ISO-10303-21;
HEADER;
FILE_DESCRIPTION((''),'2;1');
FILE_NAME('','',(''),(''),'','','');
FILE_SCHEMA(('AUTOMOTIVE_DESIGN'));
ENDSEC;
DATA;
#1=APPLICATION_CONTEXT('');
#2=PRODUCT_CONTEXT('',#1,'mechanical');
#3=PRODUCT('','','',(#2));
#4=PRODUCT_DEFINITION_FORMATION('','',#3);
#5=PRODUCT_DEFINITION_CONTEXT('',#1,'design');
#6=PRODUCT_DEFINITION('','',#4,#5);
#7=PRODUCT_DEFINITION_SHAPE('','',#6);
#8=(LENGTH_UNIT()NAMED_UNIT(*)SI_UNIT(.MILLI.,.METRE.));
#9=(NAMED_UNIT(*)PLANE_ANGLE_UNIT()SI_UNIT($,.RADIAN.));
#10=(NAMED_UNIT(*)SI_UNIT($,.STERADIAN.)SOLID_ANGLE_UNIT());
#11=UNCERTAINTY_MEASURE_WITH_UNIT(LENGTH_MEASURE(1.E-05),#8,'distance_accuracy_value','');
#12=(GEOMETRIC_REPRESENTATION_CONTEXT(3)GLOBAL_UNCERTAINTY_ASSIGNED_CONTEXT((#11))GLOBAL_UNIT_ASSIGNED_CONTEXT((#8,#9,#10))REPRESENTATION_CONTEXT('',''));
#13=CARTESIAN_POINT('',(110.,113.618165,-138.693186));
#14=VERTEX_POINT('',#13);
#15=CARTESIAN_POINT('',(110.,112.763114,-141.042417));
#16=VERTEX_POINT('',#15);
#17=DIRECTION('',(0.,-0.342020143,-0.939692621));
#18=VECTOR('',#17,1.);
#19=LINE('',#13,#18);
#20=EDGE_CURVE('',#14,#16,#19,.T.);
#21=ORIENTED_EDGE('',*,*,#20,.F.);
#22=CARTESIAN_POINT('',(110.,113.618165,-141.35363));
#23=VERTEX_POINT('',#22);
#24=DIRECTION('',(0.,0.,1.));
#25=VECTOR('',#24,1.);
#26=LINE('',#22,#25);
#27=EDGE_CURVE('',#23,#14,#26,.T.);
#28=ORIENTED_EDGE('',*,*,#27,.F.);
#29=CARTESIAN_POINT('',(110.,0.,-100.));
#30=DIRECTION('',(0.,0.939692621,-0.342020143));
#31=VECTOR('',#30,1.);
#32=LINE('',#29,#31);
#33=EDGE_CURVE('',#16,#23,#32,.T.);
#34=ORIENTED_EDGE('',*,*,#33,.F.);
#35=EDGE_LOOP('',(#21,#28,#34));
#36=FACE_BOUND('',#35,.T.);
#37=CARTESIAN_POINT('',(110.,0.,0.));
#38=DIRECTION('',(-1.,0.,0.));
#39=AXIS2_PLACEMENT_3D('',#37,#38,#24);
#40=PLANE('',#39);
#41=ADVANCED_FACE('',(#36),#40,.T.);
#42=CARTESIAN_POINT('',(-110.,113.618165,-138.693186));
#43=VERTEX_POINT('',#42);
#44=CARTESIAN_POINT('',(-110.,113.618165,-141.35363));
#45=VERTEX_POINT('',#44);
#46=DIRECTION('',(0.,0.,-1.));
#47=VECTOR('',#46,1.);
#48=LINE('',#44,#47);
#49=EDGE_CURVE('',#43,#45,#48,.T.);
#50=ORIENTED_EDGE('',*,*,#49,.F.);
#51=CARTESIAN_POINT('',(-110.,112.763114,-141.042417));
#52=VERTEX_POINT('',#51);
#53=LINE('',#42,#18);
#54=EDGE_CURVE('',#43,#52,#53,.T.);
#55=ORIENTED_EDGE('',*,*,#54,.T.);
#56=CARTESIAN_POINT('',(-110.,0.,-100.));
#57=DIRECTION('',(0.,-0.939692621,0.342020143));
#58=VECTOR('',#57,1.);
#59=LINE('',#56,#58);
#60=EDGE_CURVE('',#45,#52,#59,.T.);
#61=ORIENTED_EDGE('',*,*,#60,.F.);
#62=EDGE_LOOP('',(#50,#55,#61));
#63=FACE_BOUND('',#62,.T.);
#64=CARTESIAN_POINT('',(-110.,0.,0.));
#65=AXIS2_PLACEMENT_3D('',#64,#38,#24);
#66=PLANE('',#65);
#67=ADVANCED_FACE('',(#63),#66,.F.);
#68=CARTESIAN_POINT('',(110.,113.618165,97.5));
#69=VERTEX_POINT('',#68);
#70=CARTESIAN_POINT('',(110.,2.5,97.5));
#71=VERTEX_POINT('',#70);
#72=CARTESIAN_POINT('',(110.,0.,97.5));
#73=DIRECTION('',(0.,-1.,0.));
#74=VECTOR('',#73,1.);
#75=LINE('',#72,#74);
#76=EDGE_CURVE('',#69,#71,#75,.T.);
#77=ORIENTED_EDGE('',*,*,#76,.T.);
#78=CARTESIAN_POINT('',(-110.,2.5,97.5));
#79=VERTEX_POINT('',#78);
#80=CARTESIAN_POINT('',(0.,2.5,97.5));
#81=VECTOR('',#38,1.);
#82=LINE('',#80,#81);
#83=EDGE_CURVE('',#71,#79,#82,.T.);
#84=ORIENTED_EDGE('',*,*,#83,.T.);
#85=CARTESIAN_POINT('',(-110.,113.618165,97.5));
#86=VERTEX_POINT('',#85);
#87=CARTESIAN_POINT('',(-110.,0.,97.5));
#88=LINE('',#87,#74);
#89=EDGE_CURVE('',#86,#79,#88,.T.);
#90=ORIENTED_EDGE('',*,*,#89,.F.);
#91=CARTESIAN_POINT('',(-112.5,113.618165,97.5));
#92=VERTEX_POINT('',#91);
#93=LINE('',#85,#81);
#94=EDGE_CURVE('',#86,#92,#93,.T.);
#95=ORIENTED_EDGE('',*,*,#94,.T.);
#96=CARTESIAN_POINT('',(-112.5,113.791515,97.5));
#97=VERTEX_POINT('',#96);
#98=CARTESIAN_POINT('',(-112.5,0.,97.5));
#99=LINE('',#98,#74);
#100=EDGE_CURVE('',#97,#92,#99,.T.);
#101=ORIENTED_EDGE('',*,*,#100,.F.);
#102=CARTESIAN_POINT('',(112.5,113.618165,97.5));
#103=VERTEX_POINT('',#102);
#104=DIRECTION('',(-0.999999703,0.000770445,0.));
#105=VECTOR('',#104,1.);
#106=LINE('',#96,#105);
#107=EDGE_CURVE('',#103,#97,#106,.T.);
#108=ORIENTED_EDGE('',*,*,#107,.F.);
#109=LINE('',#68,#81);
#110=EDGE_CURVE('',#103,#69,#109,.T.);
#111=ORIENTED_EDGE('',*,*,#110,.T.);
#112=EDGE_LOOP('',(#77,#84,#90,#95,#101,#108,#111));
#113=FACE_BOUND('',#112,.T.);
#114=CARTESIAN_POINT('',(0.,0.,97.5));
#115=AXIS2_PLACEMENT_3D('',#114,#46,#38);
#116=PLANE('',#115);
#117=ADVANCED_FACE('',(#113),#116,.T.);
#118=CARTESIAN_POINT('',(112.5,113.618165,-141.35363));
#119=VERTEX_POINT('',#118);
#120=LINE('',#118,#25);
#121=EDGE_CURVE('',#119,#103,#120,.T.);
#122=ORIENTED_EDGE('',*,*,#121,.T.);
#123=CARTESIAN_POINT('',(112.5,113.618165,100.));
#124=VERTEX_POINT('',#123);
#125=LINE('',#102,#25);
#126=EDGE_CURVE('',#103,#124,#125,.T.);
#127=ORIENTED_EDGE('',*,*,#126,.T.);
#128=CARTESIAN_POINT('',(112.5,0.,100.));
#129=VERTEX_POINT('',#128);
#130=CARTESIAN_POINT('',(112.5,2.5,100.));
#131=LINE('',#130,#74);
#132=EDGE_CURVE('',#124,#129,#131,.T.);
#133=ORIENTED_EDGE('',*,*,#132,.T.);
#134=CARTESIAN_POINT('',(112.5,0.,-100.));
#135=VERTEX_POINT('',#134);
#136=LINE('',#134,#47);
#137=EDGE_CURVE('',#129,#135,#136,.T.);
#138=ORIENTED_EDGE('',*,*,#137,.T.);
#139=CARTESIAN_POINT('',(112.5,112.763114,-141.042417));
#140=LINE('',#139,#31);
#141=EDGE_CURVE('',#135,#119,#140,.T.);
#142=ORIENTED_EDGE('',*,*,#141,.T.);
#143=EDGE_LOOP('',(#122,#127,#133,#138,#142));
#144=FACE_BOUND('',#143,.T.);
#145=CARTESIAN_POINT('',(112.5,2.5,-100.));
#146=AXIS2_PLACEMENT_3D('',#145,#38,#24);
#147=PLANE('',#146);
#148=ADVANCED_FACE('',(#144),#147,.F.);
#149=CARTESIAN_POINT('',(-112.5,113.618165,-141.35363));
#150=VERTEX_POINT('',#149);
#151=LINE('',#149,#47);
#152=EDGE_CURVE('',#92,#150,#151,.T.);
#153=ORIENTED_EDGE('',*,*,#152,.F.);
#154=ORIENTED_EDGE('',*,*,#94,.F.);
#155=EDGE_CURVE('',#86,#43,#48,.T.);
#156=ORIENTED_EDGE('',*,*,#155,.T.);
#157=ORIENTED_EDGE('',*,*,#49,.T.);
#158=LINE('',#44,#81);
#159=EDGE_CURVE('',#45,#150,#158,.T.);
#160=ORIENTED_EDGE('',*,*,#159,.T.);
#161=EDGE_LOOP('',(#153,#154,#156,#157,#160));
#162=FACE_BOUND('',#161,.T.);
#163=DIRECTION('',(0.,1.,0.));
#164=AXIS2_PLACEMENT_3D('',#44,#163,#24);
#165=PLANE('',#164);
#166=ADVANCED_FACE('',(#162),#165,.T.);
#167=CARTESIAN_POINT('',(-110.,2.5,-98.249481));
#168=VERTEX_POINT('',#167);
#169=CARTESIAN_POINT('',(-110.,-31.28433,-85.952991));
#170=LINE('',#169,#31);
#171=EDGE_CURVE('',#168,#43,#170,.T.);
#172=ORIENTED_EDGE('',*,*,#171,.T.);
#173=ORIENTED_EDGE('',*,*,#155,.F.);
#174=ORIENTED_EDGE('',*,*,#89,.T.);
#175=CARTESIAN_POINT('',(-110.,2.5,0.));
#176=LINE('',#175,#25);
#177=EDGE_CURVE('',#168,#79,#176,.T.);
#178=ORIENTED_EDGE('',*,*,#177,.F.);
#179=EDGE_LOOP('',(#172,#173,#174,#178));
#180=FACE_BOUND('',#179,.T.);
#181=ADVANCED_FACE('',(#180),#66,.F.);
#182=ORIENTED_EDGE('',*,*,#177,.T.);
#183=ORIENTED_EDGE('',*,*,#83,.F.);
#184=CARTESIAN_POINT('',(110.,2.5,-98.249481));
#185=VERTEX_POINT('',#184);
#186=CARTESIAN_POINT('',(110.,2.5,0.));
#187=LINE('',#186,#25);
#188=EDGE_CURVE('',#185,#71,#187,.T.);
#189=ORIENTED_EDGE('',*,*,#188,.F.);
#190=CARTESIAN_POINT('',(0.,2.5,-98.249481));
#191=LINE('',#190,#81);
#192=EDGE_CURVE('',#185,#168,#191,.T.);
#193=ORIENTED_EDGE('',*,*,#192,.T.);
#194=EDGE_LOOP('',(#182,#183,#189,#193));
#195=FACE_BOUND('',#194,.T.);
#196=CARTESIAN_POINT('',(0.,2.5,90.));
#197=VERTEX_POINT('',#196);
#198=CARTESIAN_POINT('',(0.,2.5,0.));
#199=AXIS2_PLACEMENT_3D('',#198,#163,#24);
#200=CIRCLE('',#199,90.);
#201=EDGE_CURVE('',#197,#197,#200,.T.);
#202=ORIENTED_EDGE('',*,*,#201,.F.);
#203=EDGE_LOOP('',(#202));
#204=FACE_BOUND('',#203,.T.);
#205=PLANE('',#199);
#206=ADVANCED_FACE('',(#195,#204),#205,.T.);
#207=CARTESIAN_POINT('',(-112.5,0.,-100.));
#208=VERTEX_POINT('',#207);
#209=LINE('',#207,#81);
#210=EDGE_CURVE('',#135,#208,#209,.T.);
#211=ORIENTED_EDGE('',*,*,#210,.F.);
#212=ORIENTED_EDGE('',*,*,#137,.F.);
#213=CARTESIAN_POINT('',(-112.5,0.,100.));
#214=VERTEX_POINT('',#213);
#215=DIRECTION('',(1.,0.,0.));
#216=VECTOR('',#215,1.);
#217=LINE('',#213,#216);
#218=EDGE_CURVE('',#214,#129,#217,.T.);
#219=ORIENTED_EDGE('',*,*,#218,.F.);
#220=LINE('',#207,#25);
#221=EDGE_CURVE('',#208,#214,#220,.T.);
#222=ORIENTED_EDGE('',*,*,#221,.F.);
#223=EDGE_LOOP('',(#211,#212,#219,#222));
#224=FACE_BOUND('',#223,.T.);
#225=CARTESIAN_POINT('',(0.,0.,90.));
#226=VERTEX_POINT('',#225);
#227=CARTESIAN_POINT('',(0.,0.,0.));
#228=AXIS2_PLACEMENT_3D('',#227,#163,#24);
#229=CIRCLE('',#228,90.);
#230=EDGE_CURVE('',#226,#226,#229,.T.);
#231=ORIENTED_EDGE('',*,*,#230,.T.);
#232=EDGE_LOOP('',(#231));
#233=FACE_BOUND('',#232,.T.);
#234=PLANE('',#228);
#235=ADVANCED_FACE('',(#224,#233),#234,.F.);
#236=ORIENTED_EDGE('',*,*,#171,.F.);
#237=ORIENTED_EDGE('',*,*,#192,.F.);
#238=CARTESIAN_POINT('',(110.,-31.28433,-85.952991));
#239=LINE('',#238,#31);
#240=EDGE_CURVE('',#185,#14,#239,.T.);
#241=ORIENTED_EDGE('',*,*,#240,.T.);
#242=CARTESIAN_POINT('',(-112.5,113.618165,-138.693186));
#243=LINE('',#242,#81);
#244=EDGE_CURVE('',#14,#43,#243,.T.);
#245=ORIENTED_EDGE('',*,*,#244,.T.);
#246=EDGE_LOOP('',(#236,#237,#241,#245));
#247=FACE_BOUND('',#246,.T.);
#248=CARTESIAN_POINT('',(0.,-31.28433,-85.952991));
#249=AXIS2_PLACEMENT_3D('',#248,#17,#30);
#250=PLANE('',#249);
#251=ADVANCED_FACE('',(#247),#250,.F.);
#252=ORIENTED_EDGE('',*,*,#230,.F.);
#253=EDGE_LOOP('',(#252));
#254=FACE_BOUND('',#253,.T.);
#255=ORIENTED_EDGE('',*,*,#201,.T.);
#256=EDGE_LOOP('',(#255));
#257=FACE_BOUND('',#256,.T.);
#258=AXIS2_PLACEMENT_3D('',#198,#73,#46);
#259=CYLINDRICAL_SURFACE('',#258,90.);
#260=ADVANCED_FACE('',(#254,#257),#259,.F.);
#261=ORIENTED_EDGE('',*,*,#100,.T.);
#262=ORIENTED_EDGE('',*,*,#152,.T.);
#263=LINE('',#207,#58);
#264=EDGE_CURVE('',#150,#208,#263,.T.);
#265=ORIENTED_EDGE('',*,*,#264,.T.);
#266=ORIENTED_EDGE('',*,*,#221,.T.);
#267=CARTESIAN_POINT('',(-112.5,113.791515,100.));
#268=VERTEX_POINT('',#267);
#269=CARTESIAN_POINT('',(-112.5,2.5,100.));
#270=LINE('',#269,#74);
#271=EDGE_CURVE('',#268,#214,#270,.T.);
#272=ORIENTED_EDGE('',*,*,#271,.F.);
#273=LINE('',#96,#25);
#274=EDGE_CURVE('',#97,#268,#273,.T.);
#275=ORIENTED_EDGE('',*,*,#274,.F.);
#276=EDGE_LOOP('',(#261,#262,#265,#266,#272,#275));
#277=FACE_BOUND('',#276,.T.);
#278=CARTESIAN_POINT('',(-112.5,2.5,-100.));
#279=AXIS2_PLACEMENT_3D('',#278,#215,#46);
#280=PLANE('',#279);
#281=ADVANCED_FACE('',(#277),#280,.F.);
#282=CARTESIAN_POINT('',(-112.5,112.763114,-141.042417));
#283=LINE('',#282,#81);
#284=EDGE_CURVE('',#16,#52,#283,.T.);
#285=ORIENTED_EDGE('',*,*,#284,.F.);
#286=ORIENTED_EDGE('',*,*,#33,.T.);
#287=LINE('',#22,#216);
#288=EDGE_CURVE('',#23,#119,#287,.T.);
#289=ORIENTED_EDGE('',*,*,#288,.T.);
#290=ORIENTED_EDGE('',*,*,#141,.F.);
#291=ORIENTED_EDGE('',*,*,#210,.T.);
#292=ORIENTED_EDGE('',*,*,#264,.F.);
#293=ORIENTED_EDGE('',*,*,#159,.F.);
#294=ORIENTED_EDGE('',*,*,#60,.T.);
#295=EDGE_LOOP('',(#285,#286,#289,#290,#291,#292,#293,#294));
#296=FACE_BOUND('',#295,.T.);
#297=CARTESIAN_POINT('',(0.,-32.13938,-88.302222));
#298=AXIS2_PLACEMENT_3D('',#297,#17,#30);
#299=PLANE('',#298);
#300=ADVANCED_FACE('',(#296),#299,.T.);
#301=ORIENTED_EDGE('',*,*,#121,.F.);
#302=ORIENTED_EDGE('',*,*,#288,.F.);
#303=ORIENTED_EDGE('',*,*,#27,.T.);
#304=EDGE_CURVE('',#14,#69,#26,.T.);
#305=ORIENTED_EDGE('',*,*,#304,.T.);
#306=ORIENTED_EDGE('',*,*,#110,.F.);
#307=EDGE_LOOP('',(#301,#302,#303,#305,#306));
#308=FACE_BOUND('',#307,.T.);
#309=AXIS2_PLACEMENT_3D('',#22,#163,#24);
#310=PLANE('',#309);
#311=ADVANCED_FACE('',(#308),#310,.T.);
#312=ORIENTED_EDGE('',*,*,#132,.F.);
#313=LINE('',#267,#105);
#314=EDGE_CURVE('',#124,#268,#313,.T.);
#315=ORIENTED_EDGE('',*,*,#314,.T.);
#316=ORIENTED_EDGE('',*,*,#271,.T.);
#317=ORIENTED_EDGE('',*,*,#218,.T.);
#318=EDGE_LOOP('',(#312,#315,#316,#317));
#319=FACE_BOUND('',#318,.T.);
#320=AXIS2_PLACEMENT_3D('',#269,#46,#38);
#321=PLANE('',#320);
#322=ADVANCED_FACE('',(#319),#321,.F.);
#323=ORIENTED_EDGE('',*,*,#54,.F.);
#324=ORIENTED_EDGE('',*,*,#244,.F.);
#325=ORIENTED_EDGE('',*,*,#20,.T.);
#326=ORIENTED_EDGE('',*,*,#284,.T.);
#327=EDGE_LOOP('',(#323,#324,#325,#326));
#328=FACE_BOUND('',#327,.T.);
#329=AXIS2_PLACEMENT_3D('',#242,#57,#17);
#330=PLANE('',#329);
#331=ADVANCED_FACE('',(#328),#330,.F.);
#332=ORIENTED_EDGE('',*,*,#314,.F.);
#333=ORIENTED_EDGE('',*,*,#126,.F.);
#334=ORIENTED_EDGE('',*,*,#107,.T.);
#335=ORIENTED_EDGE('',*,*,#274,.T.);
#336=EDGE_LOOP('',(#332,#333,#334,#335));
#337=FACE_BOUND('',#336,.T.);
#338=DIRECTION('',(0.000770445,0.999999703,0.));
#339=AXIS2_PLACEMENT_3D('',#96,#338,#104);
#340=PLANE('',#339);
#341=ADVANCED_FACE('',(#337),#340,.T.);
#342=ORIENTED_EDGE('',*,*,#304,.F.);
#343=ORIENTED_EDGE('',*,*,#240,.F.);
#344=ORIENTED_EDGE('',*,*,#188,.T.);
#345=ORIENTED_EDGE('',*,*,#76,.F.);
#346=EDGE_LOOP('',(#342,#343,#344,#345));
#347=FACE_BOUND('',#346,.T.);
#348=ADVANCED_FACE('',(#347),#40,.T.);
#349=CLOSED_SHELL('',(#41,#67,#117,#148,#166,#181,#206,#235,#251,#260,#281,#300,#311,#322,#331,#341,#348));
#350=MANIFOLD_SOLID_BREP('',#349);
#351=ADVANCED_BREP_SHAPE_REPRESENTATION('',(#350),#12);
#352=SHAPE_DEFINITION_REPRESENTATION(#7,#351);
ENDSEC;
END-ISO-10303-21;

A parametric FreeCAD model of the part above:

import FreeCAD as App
import Part
import Sketcher
Q = App.Units.Quantity

doc = App.newDocument("Part")
params = doc.addObject("Spreadsheet::Sheet", "Params")
for row, (alias, value) in enumerate([
    ("sketch1_diameter", "180 mm"),
    ("sketch1_width", "225 mm"),
    ("sketch1_height", "200 mm"),
    ("pad1_length", "2.5 mm"),
    ("sketch2_width", "225 mm"),
    ("sketch2_height", "120 mm"),
    ("pad2_length", "2.5 mm"),
    ("sketch3_height", "200 mm"),
    ("pad3_length", "2.5 mm"),
    ("sketch4_height", "200 mm"),
    ("pad4_length", "2.5 mm"),
    ("sketch5_width", "225 mm"),
    ("pad5_length", "2.5 mm"),
], start=1):
    params.set(f"A{row}", alias)
    params.set(f"B{row}", "=" + value)
    params.setAlias(f"B{row}", alias)

body = doc.addObject("PartDesign::Body", "Body")

sketch1 = body.newObject("Sketcher::SketchObject", "Sketch")
sketch1.AttachmentSupport = (doc.getObject("XZ_Plane"), [""])
sketch1.MapMode = "FlatFace"
sketch1.addGeometry([
    Part.LineSegment(App.Vector(-112, -100, 0), App.Vector(-112, 100, 0)),
    Part.LineSegment(App.Vector(-112, 100, 0), App.Vector(112, 100, 0)),
    Part.LineSegment(App.Vector(112, 100, 0), App.Vector(112, -100, 0)),
    Part.LineSegment(App.Vector(112, -100, 0), App.Vector(-112, -100, 0)),
    Part.Circle(App.Vector(0, 0, 0), App.Vector(0, 0, 1), 90),
], False)
sketch1.addConstraint([
    Sketcher.Constraint("Coincident", 0, 2, 1, 1),
    Sketcher.Constraint("Coincident", 1, 2, 2, 1),
    Sketcher.Constraint("Coincident", 2, 2, 3, 1),
    Sketcher.Constraint("Coincident", 3, 2, 0, 1),
    Sketcher.Constraint("Vertical", 0),
    Sketcher.Constraint("Horizontal", 1),
    Sketcher.Constraint("Vertical", 2),
    Sketcher.Constraint("Horizontal", 3),
    Sketcher.Constraint("Coincident", 4, 3, -1, 1),
    Sketcher.Constraint("Symmetric", 0, 2, 2, 2, -1, 1),
    Sketcher.Constraint("Diameter", 4, 180.0),
    Sketcher.Constraint("DistanceX", 1, 1, 1, 2, 225.0),
    Sketcher.Constraint("DistanceY", 0, 1, 0, 2, 200.0),
])
sketch1.setExpression("Constraints[10]", "Params.sketch1_diameter")
sketch1.setExpression("Constraints[11]", "Params.sketch1_width")
sketch1.setExpression("Constraints[12]", "Params.sketch1_height")
pad1 = body.newObject("PartDesign::Pad", "Pad")
pad1.Profile = sketch1
pad1.setExpression("Length", "Params.pad1_length")
pad1.Reversed = True

sketch2 = body.newObject("Sketcher::SketchObject", "Sketch001")
sketch2.Placement = App.Placement(App.Vector(0, -32.13938, -88.302222), App.Rotation(App.Vector(1, 0, 0), App.Vector(0, 0.939692621, -0.342020143), App.Vector(0, 0.342020143, 0.939692621), "ZXY"))
sketch2.addGeometry([
    Part.LineSegment(App.Vector(-112, 154, 0), App.Vector(-112, 34, 0)),
    Part.LineSegment(App.Vector(-112, 34, 0), App.Vector(112, 34, 0)),
    Part.LineSegment(App.Vector(112, 34, 0), App.Vector(112, 154, 0)),
    Part.LineSegment(App.Vector(112, 154, 0), App.Vector(-112, 154, 0)),
], False)
sketch2.addConstraint([
    Sketcher.Constraint("Coincident", 0, 2, 1, 1),
    Sketcher.Constraint("Coincident", 1, 2, 2, 1),
    Sketcher.Constraint("Coincident", 2, 2, 3, 1),
    Sketcher.Constraint("Coincident", 3, 2, 0, 1),
    Sketcher.Constraint("Vertical", 0),
    Sketcher.Constraint("Horizontal", 1),
    Sketcher.Constraint("Vertical", 2),
    Sketcher.Constraint("Horizontal", 3),
    Sketcher.Constraint("DistanceX", 1, 1, 1, 2, 225.0),
    Sketcher.Constraint("DistanceY", 0, 2, 0, 1, 120.0),
    Sketcher.Constraint("DistanceX", 0, 2, -1, 1, 112.5),
    Sketcher.Constraint("DistanceY", -1, 1, 0, 2, 34.202014),
])
sketch2.setExpression("Constraints[8]", "Params.sketch2_width")
sketch2.setExpression("Constraints[9]", "Params.sketch2_height")
pad2 = body.newObject("PartDesign::Pad", "Pad001")
pad2.Profile = sketch2
pad2.setExpression("Length", "Params.pad2_length")

sketch3 = body.newObject("Sketcher::SketchObject", "Sketch002")
sketch3.AttachmentSupport = (doc.getObject("YZ_Plane"), [""])
sketch3.MapMode = "FlatFace"
sketch3.AttachmentOffset = App.Placement(App.Vector(0, 0, -112.5), App.Rotation())
sketch3.addGeometry([
    Part.LineSegment(App.Vector(114, -141, 0), App.Vector(0, -100, 0)),
    Part.LineSegment(App.Vector(0, -100, 0), App.Vector(0, 100, 0)),
    Part.LineSegment(App.Vector(0, 100, 0), App.Vector(114, 100, 0)),
    Part.LineSegment(App.Vector(114, 100, 0), App.Vector(114, -141, 0)),
], False)
sketch3.addConstraint([
    Sketcher.Constraint("Coincident", 0, 2, 1, 1),
    Sketcher.Constraint("Coincident", 1, 2, 2, 1),
    Sketcher.Constraint("Coincident", 2, 2, 3, 1),
    Sketcher.Constraint("Coincident", 3, 2, 0, 1),
    Sketcher.Constraint("Vertical", 1),
    Sketcher.Constraint("Horizontal", 2),
    Sketcher.Constraint("Vertical", 3),
    Sketcher.Constraint("Symmetric", 0, 2, 1, 2, -1, 1),
    Sketcher.Constraint("DistanceY", 1, 1, 1, 2, 200.0),
    Sketcher.Constraint("Angle", 0, Q("160 deg")),
    Sketcher.Constraint("DistanceY", 3, 2, 3, 1, 241.35363),
])
sketch3.setExpression("Constraints[8]", "Params.sketch3_height")
pad3 = body.newObject("PartDesign::Pad", "Pad002")
pad3.Profile = sketch3
pad3.setExpression("Length", "Params.pad3_length")

sketch4 = body.newObject("Sketcher::SketchObject", "Sketch003")
sketch4.AttachmentSupport = (doc.getObject("YZ_Plane"), [""])
sketch4.MapMode = "FlatFace"
sketch4.AttachmentOffset = App.Placement(App.Vector(0, 0, 112.5), App.Rotation())
sketch4.addGeometry([
    Part.LineSegment(App.Vector(0, -100, 0), App.Vector(114, -141, 0)),
    Part.LineSegment(App.Vector(114, -141, 0), App.Vector(114, 100, 0)),
    Part.LineSegment(App.Vector(114, 100, 0), App.Vector(0, 100, 0)),
    Part.LineSegment(App.Vector(0, 100, 0), App.Vector(0, -100, 0)),
], False)
sketch4.addConstraint([
    Sketcher.Constraint("Coincident", 0, 2, 1, 1),
    Sketcher.Constraint("Coincident", 1, 2, 2, 1),
    Sketcher.Constraint("Coincident", 2, 2, 3, 1),
    Sketcher.Constraint("Coincident", 3, 2, 0, 1),
    Sketcher.Constraint("Vertical", 1),
    Sketcher.Constraint("Horizontal", 2),
    Sketcher.Constraint("Vertical", 3),
    Sketcher.Constraint("Symmetric", 2, 2, 3, 2, -1, 1),
    Sketcher.Constraint("DistanceY", 3, 2, 3, 1, 200.0),
    Sketcher.Constraint("Angle", 0, Q("-20 deg")),
    Sketcher.Constraint("DistanceY", 1, 1, 1, 2, 241.35363),
])
sketch4.setExpression("Constraints[8]", "Params.sketch4_height")
pad4 = body.newObject("PartDesign::Pad", "Pad003")
pad4.Profile = sketch4
pad4.setExpression("Length", "Params.pad4_length")
pad4.Reversed = True

sketch5 = body.newObject("Sketcher::SketchObject", "Sketch004")
sketch5.AttachmentSupport = (doc.getObject("XY_Plane"), [""])
sketch5.MapMode = "FlatFace"
sketch5.AttachmentOffset = App.Placement(App.Vector(0, 0, 100), App.Rotation())
sketch5.addGeometry([
    Part.LineSegment(App.Vector(-112, 114, 0), App.Vector(-112, 0, 0)),
    Part.LineSegment(App.Vector(-112, 0, 0), App.Vector(112, 0, 0)),
    Part.LineSegment(App.Vector(112, 0, 0), App.Vector(112, 114, 0)),
    Part.LineSegment(App.Vector(112, 114, 0), App.Vector(-112, 114, 0)),
], False)
sketch5.addConstraint([
    Sketcher.Constraint("Coincident", 0, 2, 1, 1),
    Sketcher.Constraint("Coincident", 1, 2, 2, 1),
    Sketcher.Constraint("Coincident", 2, 2, 3, 1),
    Sketcher.Constraint("Coincident", 3, 2, 0, 1),
    Sketcher.Constraint("Vertical", 0),
    Sketcher.Constraint("Horizontal", 1),
    Sketcher.Constraint("Vertical", 2),
    Sketcher.Constraint("Symmetric", 0, 2, 1, 2, -1, 1),
    Sketcher.Constraint("DistanceX", 1, 1, 1, 2, 225.0),
    Sketcher.Constraint("DistanceY", 0, 2, 0, 1, 113.791515),
    Sketcher.Constraint("DistanceY", 2, 1, 2, 2, 113.618165),
])
sketch5.setExpression("Constraints[8]", "Params.sketch5_width")
pad5 = body.newObject("PartDesign::Pad", "Pad004")
pad5.Profile = sketch5
pad5.setExpression("Length", "Params.pad5_length")
pad5.Reversed = True

doc.recompute()
